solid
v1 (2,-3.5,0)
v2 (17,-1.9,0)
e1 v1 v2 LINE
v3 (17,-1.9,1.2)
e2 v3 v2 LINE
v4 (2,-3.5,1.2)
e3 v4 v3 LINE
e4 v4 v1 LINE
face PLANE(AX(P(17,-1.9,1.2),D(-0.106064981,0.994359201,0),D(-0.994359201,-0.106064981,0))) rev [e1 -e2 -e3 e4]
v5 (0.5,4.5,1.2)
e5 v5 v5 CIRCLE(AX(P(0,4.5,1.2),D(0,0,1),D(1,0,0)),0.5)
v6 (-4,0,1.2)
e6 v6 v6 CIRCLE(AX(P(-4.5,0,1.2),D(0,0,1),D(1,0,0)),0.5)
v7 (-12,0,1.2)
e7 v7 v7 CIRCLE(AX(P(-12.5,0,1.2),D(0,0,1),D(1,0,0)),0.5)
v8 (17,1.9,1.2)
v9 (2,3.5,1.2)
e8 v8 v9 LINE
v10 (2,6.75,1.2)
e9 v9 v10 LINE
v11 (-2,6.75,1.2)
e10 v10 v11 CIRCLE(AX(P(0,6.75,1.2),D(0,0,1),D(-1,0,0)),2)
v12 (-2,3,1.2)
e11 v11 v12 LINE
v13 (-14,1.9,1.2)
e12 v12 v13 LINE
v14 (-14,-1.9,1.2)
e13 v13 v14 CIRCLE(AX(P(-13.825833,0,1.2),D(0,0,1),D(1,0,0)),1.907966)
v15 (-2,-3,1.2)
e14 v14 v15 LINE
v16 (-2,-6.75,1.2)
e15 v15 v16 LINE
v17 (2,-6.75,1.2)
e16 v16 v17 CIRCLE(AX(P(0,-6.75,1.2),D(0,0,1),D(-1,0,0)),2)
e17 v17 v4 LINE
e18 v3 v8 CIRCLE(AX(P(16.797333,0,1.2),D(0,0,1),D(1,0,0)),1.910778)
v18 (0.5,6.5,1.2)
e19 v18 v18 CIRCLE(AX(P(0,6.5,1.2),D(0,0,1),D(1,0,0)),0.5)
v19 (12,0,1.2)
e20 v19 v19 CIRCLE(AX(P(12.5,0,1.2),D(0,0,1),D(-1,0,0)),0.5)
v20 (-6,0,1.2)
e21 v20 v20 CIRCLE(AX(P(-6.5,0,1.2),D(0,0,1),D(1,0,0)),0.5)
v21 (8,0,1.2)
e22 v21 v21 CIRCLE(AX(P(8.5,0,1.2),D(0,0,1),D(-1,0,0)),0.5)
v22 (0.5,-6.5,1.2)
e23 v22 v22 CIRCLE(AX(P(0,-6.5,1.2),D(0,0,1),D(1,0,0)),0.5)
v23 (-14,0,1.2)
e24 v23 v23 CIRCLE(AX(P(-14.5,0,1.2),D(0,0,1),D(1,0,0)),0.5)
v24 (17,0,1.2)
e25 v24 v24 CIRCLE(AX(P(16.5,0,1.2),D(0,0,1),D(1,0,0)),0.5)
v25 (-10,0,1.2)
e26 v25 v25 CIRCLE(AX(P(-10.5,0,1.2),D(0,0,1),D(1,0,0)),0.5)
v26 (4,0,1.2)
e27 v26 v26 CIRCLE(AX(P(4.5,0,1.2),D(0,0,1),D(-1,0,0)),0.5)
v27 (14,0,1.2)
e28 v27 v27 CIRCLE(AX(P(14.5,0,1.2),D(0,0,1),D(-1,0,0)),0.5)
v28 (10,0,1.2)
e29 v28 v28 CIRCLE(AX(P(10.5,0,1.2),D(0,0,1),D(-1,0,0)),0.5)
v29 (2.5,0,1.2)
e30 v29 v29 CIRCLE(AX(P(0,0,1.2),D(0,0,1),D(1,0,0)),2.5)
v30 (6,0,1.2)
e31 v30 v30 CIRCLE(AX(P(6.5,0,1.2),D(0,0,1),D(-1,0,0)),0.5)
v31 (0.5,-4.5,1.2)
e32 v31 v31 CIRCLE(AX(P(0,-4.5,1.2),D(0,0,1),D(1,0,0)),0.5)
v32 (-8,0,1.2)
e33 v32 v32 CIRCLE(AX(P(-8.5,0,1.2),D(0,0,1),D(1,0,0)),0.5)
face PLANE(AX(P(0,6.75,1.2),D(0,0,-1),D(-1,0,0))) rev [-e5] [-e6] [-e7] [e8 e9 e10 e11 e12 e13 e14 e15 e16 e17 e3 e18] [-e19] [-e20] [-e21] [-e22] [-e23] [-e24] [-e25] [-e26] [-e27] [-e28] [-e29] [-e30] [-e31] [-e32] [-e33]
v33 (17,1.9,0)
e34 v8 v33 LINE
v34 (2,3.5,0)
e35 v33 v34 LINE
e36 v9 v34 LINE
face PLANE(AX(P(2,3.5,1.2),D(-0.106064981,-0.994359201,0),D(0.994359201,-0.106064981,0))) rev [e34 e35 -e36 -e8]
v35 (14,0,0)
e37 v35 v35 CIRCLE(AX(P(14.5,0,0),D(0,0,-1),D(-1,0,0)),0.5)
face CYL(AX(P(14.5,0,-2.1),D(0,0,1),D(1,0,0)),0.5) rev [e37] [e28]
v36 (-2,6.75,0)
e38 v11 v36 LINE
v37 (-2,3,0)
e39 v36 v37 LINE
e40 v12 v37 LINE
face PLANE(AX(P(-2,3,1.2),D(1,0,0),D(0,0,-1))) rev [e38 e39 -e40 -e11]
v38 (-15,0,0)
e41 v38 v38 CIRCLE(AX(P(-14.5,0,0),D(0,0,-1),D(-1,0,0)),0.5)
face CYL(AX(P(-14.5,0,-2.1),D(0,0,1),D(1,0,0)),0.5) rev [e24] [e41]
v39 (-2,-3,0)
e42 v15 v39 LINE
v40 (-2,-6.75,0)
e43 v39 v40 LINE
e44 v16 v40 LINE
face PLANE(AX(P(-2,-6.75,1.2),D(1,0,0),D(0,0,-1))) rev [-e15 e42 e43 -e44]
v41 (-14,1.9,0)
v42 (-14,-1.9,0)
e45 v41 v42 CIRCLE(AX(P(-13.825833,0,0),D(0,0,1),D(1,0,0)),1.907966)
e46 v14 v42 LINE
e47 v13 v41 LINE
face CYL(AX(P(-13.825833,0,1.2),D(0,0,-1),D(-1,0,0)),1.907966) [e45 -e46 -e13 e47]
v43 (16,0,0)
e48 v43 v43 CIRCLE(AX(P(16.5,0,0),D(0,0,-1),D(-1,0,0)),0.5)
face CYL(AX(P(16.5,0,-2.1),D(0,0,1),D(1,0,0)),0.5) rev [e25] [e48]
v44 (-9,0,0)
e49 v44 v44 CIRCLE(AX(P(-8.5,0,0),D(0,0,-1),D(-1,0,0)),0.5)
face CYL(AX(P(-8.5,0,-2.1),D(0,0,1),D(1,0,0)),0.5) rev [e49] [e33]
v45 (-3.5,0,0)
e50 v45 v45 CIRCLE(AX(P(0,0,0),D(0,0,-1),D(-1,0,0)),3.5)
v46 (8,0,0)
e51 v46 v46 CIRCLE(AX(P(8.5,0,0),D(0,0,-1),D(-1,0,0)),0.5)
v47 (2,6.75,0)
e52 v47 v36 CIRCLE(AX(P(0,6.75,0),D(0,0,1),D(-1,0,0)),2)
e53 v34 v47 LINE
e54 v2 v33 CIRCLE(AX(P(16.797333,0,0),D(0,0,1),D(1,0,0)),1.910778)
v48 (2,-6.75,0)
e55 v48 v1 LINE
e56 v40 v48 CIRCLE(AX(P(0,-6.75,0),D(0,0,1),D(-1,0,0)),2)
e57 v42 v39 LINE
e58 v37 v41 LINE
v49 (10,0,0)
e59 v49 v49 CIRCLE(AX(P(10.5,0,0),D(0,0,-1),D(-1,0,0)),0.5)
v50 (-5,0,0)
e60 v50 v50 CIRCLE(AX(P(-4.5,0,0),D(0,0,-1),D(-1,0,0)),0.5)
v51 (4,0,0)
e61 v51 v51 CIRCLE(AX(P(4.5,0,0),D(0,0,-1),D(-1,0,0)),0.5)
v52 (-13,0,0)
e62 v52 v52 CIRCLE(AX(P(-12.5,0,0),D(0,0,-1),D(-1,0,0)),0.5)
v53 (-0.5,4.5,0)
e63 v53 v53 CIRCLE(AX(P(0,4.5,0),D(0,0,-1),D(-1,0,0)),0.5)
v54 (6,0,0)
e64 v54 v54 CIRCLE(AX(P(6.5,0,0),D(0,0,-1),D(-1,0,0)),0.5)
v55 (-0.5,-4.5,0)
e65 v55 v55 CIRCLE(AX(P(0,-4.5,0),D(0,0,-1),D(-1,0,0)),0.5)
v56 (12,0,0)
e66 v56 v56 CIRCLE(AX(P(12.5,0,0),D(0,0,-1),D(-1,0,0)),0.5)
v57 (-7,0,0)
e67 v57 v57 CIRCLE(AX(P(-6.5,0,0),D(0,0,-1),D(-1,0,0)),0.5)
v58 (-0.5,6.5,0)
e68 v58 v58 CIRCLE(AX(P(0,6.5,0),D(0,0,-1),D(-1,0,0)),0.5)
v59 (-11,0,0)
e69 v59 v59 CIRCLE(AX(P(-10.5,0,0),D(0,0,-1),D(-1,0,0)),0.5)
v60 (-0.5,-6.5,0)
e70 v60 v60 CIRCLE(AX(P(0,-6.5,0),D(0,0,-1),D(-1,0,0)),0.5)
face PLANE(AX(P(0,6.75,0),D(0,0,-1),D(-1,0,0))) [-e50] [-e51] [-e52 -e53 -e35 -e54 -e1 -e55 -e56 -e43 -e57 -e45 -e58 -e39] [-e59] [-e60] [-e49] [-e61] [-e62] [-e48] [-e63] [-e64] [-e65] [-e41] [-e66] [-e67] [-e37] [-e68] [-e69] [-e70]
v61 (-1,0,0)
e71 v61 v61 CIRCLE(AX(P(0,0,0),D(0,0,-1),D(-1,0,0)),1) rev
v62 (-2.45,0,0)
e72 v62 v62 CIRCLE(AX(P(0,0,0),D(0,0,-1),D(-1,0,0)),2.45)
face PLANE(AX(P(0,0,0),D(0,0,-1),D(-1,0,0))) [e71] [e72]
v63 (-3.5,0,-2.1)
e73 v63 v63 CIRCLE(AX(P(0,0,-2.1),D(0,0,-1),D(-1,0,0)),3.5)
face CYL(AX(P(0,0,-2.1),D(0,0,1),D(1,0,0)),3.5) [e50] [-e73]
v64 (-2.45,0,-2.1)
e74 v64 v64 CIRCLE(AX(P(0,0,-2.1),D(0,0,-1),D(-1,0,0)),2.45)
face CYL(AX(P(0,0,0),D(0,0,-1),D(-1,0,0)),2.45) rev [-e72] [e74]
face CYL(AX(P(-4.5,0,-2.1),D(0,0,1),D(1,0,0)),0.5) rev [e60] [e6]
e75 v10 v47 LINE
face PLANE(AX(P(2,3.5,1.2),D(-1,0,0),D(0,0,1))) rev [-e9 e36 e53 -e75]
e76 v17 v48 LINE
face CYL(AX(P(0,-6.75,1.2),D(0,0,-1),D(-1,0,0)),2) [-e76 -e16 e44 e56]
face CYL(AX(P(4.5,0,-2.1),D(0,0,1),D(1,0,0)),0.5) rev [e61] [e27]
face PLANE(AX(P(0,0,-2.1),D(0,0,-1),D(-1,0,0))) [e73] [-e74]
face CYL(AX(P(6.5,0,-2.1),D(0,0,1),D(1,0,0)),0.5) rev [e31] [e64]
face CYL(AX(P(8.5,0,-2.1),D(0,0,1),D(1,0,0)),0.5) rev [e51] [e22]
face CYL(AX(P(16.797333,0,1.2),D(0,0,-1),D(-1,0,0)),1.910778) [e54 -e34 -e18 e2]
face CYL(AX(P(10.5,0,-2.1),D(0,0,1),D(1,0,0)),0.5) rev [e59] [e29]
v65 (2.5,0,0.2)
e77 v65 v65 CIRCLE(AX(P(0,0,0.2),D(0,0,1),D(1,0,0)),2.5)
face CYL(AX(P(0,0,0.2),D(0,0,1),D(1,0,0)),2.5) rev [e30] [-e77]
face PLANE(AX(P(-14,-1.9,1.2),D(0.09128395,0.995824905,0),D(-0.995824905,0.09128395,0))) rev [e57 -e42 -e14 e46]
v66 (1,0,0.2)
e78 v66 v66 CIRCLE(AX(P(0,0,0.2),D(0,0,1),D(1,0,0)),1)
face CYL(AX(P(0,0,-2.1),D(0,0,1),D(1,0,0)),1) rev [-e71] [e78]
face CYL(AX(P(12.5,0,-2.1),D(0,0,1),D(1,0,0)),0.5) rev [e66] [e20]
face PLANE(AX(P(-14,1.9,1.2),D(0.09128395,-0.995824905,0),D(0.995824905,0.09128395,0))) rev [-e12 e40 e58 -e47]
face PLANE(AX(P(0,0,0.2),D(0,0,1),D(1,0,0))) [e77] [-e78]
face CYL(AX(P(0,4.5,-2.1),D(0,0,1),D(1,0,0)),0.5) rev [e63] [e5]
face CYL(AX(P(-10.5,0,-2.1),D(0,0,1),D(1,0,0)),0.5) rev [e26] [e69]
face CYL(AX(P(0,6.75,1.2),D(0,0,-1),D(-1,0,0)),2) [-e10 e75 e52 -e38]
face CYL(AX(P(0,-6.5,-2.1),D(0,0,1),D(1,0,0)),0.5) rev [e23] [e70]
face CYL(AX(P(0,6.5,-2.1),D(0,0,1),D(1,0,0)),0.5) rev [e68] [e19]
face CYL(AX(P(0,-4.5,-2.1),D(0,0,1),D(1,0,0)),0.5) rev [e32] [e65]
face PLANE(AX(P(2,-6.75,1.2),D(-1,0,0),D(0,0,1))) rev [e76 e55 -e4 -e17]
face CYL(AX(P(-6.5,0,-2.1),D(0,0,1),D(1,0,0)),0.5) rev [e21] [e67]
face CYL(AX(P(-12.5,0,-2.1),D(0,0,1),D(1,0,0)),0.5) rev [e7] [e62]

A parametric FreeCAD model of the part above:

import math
import FreeCAD as App
import Part
import Sketcher

V = App.Vector
Q = App.Units.Quantity

doc = App.newDocument("Part")
body = doc.addObject("PartDesign::Body", "Body")

# Sketch on XY plane
sketch1 = body.newObject("Sketcher::SketchObject", "Sketch")
sketch1.AttachmentSupport = (doc.getObject("XY_Plane"), [""])
sketch1.MapMode = "FlatFace"
sketch1.addGeometry([
    Part.LineSegment(V(-2, -3, 0), V(-2, -6.8, 0)),  # 0
    Part.ArcOfCircle(Part.Circle(V(0, -6.8, 0), V(0, 0, 1), 2), math.radians(180), math.radians(360)),  # 1
    Part.LineSegment(V(2, -6.8, 0), V(2, -3.5, 0)),  # 2
    Part.LineSegment(V(2, -3.5, 0), V(17, -1.9, 0)),  # 3
    Part.ArcOfCircle(Part.Circle(V(16.8, 0, 0), V(0, 0, 1), 1.9), math.radians(-84), math.radians(84)),  # 4
    Part.LineSegment(V(17, 1.9, 0), V(2, 3.5, 0)),  # 5
    Part.LineSegment(V(2, 3.5, 0), V(2, 6.8, 0)),  # 6
    Part.ArcOfCircle(Part.Circle(V(0, 6.8, 0), V(0, 0, 1), 2), math.radians(0), math.radians(180)),  # 7
    Part.LineSegment(V(-2, 6.8, 0), V(-2, 3, 0)),  # 8
    Part.LineSegment(V(-2, 3, 0), V(-14, 1.9, 0)),  # 9
    Part.ArcOfCircle(Part.Circle(V(-13.8, 0, 0), V(0, 0, 1), 1.9), math.radians(95), math.radians(265)),  # 10
    Part.LineSegment(V(-14, -1.9, 0), V(-2, -3, 0)),  # 11
], False)
sketch1.addConstraint([
    Sketcher.Constraint("Tangent", 0, 2, 1, 1),
    Sketcher.Constraint("Tangent", 1, 2, 2, 1),
    Sketcher.Constraint("Coincident", 2, 2, 3, 1),
    Sketcher.Constraint("Tangent", 3, 2, 4, 1),
    Sketcher.Constraint("Tangent", 4, 2, 5, 1),
    Sketcher.Constraint("Coincident", 5, 2, 6, 1),
    Sketcher.Constraint("Tangent", 6, 2, 7, 1),
    Sketcher.Constraint("Tangent", 7, 2, 8, 1),
    Sketcher.Constraint("Coincident", 8, 2, 9, 1),
    Sketcher.Constraint("Tangent", 9, 2, 10, 1),
    Sketcher.Constraint("Tangent", 10, 2, 11, 1),
    Sketcher.Constraint("Coincident", 11, 2, 0, 1),
    Sketcher.Constraint("Vertical", 0),
    Sketcher.Constraint("Vertical", 2),
    Sketcher.Constraint("Vertical", 6),
    Sketcher.Constraint("Vertical", 8),
    Sketcher.Constraint("Equal", 1, 7),
    Sketcher.Constraint("Symmetric", 1, 3, 7, 3, -1, 1),
    Sketcher.Constraint("Symmetric", 3, 2, 4, 2, -1),
    Sketcher.Constraint("Symmetric", 9, 2, 10, 2, -1),
    Sketcher.Constraint("PointOnObject", 1, 3, -2),
    Sketcher.Constraint("Horizontal", 4, 2, 9, 2),
    Sketcher.Constraint("Radius", 1, Q("2 mm")),
    Sketcher.Constraint("DistanceX", -1, 1, 3, 2, Q("17 mm")),
    Sketcher.Constraint("DistanceY", -1, 1, 8, 2, Q("3 mm")),
    Sketcher.Constraint("DistanceX", 9, 2, -1, 1, Q("14 mm")),
    Sketcher.Constraint("DistanceY", 2, 2, 5, 2, Q("7 mm")),
    Sketcher.Constraint("DistanceY", 0, 2, 0, 1, Q("3.75 mm")),
    Sketcher.Constraint("DistanceY", 3, 2, -1, 1, Q("1.9 mm")),
])
pad1 = body.newObject("PartDesign::Pad", "Pad")
pad1.Profile = sketch1
pad1.Length = 1.2

# Sketch on XY plane
sketch2 = body.newObject("Sketcher::SketchObject", "Sketch001")
sketch2.AttachmentSupport = (doc.getObject("XY_Plane"), [""])
sketch2.MapMode = "FlatFace"
sketch2.addGeometry(Part.Circle(V(0, 0, 0), V(0, 0, 1), 3.5), False)
sketch2.addConstraint([
    Sketcher.Constraint("Coincident", 0, 3, -1, 1),
    Sketcher.Constraint("Diameter", 0, Q("7 mm")),
])
pad2 = body.newObject("PartDesign::Pad", "Pad001")
pad2.Profile = sketch2
pad2.Length = 2.1
pad2.Reversed = True

# Sketch on XY plane
sketch3 = body.newObject("Sketcher::SketchObject", "Sketch002")
sketch3.AttachmentSupport = (doc.getObject("XY_Plane"), [""])
sketch3.MapMode = "FlatFace"
sketch3.AttachmentOffset = App.Placement(V(0, 0, 1.2), App.Rotation())
sketch3.addGeometry(Part.Circle(V(0, 0, 0), V(0, 0, 1), 2.5), False)
sketch3.addConstraint([
    Sketcher.Constraint("Coincident", 0, 3, -1, 1),
    Sketcher.Constraint("Diameter", 0, Q("5 mm")),
])
pocket1 = body.newObject("PartDesign::Pocket", "Pocket")
pocket1.Profile = sketch3
pocket1.Length = 1

# Sketch on XY plane
sketch4 = body.newObject("Sketcher::SketchObject", "Sketch003")
sketch4.AttachmentSupport = (doc.getObject("XY_Plane"), [""])
sketch4.MapMode = "FlatFace"
sketch4.AttachmentOffset = App.Placement(V(0, 0, 0.2), App.Rotation())
sketch4.addGeometry(Part.Circle(V(0, 0, 0), V(0, 0, 1), 1), False)
sketch4.addConstraint([
    Sketcher.Constraint("Coincident", 0, 3, -1, 1),
    Sketcher.Constraint("Diameter", 0, Q("2 mm")),
])
pocket2 = body.newObject("PartDesign::Pocket", "Pocket001")
pocket2.Profile = sketch4
pocket2.Type = "ThroughAll"

# Sketch on XY plane
sketch5 = body.newObject("Sketcher::SketchObject", "Sketch004")
sketch5.AttachmentSupport = (doc.getObject("XY_Plane"), [""])
sketch5.MapMode = "FlatFace"
sketch5.AttachmentOffset = App.Placement(V(0, 0, -2.1), App.Rotation())
sketch5.addGeometry(Part.Circle(V(0, 0, 0), V(0, 0, 1), 2.5), False)
sketch5.addConstraint([
    Sketcher.Constraint("Coincident", 0, 3, -1, 1),
    Sketcher.Constraint("Diameter", 0, Q("4.9 mm")),
])
pocket3 = body.newObject("PartDesign::Pocket", "Pocket002")
pocket3.Profile = sketch5
pocket3.Length = 2.1
pocket3.Reversed = True

# Sketch on XY plane
sketch6 = body.newObject("Sketcher::SketchObject", "Sketch005")
sketch6.AttachmentSupport = (doc.getObject("XY_Plane"), [""])
sketch6.MapMode = "FlatFace"
sketch6.AttachmentOffset = App.Placement(V(0, 0, 1.2), App.Rotation())
sketch6.addGeometry([
    Part.Circle(V(0, -4.5, 0), V(0, 0, 1), 0.5),
    Part.Circle(V(0, -6.5, 0), V(0, 0, 1), 0.5),
    Part.Circle(V(0, 4.5, 0), V(0, 0, 1), 0.5),
    Part.Circle(V(0, 6.5, 0), V(0, 0, 1), 0.5),
], False)
sketch6.addConstraint([
    Sketcher.Constraint("Equal", 0, 1),
    Sketcher.Constraint("Equal", 1, 2),
    Sketcher.Constraint("Equal", 2, 3),
    Sketcher.Constraint("Symmetric", 0, 3, 2, 3, -1, 1),
    Sketcher.Constraint("Symmetric", 1, 3, 3, 3, -1, 1),
    Sketcher.Constraint("PointOnObject", 0, 3, -2),
    Sketcher.Constraint("PointOnObject", 1, 3, -2),
    Sketcher.Constraint("Diameter", 0, Q("1 mm")),
    Sketcher.Constraint("DistanceY", 1, 3, 0, 3, Q("2 mm")),
    Sketcher.Constraint("DistanceY", 0, 3, 2, 3, Q("9 mm")),
])
pocket4 = body.newObject("PartDesign::Pocket", "Pocket003")
pocket4.Profile = sketch6
pocket4.Type = "ThroughAll"

# Sketch on XY plane
sketch7 = body.newObject("Sketcher::SketchObject", "Sketch006")
sketch7.AttachmentSupport = (doc.getObject("XY_Plane"), [""])
sketch7.MapMode = "FlatFace"
sketch7.AttachmentOffset = App.Placement(V(0, 0, 1.2), App.Rotation())
sketch7.addGeometry([
    Part.Circle(V(-4.5, 0, 0), V(0, 0, 1), 0.5),  # 0
    Part.Circle(V(-6.5, 0, 0), V(0, 0, 1), 0.5),  # 1
    Part.Circle(V(-8.5, 0, 0), V(0, 0, 1), 0.5),  # 2
    Part.Circle(V(-10.5, 0, 0), V(0, 0, 1), 0.5),  # 3
    Part.Circle(V(-12.5, 0, 0), V(0, 0, 1), 0.5),  # 4
    Part.Circle(V(-14.5, 0, 0), V(0, 0, 1), 0.5),  # 5
    Part.Circle(V(4.5, 0, 0), V(0, 0, 1), 0.5),  # 6
    Part.Circle(V(6.5, 0, 0), V(0, 0, 1), 0.5),  # 7
    Part.Circle(V(8.5, 0, 0), V(0, 0, 1), 0.5),  # 8
    Part.Circle(V(10.5, 0, 0), V(0, 0, 1), 0.5),  # 9
    Part.Circle(V(12.5, 0, 0), V(0, 0, 1), 0.5),  # 10
    Part.Circle(V(14.5, 0, 0), V(0, 0, 1), 0.5),  # 11
    Part.Circle(V(16.5, 0, 0), V(0, 0, 1), 0.5),  # 12
], False)
sketch7.addConstraint([
    Sketcher.Constraint("Equal", 0, 1),
    Sketcher.Constraint("Equal", 1, 2),
    Sketcher.Constraint("Equal", 2, 3),
    Sketcher.Constraint("Equal", 3, 4),
    Sketcher.Constraint("Equal", 4, 5),
    Sketcher.Constraint("Equal", 5, 6),
    Sketcher.Constraint("Equal", 6, 7),
    Sketcher.Constraint("Equal", 7, 8),
    Sketcher.Constraint("Equal", 8, 9),
    Sketcher.Constraint("Equal", 9, 10),
    Sketcher.Constraint("Equal", 10, 11),
    Sketcher.Constraint("Equal", 11, 12),
    Sketcher.Constraint("Symmetric", 0, 3, 6, 3, -1, 1),
    Sketcher.Constraint("Symmetric", 1, 3, 7, 3, -1, 1),
    Sketcher.Constraint("Symmetric", 2, 3, 8, 3, -1, 1),
    Sketcher.Constraint("Symmetric", 3, 3, 9, 3, -1, 1),
    Sketcher.Constraint("Symmetric", 4, 3, 10, 3, -1, 1),
    Sketcher.Constraint("Symmetric", 5, 3, 11, 3, -1, 1),
    Sketcher.Constraint("PointOnObject", 0, 3, -1),
    Sketcher.Constraint("PointOnObject", 1, 3, -1),
    Sketcher.Constraint("PointOnObject", 2, 3, -1),
    Sketcher.Constraint("PointOnObject", 3, 3, -1),
    Sketcher.Constraint("PointOnObject", 4, 3, -1),
    Sketcher.Constraint("PointOnObject", 5, 3, -1),
    Sketcher.Constraint("PointOnObject", 12, 3, -1),
    Sketcher.Constraint("Diameter", 0, Q("1 mm")),
    Sketcher.Constraint("DistanceX", 1, 3, 0, 3, Q("2 mm")),
    Sketcher.Constraint("DistanceX", 2, 3, 1, 3, Q("2 mm")),
    Sketcher.Constraint("DistanceX", 3, 3, 2, 3, Q("2 mm")),
    Sketcher.Constraint("DistanceX", 4, 3, 3, 3, Q("2 mm")),
    Sketcher.Constraint("DistanceX", 5, 3, 4, 3, Q("2 mm")),
    Sketcher.Constraint("DistanceX", 0, 3, 6, 3, Q("9 mm")),
    Sketcher.Constraint("DistanceX", 11, 3, 12, 3, Q("2 mm")),
])
pocket5 = body.newObject("PartDesign::Pocket", "Pocket004")
pocket5.Profile = sketch7
pocket5.Type = "ThroughAll"

doc.recompute()
